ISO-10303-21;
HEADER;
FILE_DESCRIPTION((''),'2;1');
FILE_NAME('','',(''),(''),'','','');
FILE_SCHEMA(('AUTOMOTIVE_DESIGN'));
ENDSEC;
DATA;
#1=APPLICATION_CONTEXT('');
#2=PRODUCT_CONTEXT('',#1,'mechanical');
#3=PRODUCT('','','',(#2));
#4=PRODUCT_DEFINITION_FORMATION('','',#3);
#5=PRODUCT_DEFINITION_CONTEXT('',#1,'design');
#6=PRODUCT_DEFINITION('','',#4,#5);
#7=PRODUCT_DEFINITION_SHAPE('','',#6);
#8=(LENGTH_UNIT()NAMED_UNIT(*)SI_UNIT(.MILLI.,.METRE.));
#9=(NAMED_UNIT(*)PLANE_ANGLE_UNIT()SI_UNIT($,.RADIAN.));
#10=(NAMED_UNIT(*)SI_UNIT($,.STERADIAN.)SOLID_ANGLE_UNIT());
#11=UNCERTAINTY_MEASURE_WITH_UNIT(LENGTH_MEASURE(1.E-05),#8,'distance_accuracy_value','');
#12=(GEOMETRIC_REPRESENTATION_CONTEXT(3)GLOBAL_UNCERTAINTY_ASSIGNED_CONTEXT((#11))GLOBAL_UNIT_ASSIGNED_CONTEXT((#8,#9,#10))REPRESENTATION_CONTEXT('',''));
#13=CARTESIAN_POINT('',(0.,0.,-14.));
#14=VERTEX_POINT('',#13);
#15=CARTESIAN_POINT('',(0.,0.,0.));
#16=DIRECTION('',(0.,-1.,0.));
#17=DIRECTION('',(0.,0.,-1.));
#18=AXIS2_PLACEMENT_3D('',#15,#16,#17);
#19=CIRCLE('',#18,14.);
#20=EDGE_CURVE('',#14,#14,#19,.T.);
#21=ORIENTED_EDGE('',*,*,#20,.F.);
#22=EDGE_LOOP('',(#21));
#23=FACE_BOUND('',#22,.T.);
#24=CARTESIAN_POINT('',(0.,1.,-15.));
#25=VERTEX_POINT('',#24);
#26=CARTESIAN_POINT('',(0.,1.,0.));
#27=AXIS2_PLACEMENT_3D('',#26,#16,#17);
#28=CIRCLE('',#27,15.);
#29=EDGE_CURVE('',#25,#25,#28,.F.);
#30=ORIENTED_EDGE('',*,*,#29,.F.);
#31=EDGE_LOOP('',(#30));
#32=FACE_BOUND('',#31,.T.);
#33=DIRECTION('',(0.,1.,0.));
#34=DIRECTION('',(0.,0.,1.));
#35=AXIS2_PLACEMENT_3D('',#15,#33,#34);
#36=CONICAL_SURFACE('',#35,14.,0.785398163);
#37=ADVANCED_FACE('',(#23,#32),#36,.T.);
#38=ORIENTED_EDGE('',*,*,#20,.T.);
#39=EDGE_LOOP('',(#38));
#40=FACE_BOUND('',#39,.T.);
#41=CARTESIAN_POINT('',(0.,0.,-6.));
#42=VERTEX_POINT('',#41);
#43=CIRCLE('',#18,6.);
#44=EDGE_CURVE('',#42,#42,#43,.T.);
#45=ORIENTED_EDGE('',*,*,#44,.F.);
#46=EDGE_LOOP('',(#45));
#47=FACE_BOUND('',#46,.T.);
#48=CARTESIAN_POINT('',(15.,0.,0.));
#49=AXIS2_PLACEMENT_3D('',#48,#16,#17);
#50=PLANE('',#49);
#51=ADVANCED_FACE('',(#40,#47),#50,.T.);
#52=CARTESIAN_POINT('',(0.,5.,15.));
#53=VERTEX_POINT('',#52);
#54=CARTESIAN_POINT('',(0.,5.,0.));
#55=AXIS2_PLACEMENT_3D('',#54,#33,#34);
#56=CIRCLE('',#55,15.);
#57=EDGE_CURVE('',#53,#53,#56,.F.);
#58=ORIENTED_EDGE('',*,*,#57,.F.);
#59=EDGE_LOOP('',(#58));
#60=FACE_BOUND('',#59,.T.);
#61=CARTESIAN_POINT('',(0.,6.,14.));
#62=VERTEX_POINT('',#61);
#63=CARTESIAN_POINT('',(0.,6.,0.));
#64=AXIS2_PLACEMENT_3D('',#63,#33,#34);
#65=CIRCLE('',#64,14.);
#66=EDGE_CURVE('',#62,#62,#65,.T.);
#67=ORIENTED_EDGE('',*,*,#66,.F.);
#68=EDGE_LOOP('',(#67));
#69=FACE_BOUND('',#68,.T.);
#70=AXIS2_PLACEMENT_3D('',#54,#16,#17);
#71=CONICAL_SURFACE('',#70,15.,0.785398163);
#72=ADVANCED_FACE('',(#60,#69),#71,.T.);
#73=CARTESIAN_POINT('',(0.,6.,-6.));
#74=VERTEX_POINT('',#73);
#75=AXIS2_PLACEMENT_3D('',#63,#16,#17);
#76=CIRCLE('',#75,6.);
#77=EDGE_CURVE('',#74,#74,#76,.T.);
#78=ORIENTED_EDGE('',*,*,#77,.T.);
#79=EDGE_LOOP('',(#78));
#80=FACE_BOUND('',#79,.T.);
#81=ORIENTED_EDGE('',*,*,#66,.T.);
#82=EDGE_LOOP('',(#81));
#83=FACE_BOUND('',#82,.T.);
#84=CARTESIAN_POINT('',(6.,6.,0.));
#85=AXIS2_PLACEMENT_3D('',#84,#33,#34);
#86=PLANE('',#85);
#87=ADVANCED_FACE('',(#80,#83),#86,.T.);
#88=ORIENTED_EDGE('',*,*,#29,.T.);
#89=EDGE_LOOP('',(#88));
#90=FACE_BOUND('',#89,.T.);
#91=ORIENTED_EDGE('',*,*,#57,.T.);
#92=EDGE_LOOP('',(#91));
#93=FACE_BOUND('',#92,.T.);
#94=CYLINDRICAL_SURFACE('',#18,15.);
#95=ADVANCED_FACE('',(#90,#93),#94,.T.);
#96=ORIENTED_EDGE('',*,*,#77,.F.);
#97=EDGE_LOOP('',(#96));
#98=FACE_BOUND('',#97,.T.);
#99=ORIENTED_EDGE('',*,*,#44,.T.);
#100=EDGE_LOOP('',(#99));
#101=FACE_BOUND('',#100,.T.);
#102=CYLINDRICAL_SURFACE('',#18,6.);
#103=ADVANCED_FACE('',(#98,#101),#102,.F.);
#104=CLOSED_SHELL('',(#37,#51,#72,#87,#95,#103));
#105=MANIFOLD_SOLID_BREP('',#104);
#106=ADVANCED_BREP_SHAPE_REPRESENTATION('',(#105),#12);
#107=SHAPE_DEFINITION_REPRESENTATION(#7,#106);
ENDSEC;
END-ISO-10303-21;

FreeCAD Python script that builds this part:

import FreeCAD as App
import Part
import Sketcher
from FreeCAD import Vector


def edges_at(feature, points):
    """Names of the edges that pass closest to the given points."""
    edges = feature.Shape.Edges
    near = lambda p: min(range(len(edges)), key=lambda i: edges[i].distToShape(Part.Vertex(*p))[0])
    return sorted({f"Edge{near(p) + 1}" for p in points})


def add_polygon(sketch, points):
    """Adds a closed chain of lines whose ends are joined by coincident constraints."""
    first, n = sketch.GeometryCount, len(points)
    for a, b in zip(points, points[1:] + points[:1]):
        sketch.addGeometry(Part.LineSegment(App.Vector(*a, 0), App.Vector(*b, 0)), False)
    for i in range(n):
        sketch.addConstraint(Sketcher.Constraint("Coincident", first + i, 2, first + (i + 1) % n, 1))

doc = App.newDocument("Part")
body = doc.addObject("PartDesign::Body", "Body")

sketch1 = body.newObject("Sketcher::SketchObject", "Sketch")
sketch1.AttachmentSupport = (doc.getObject("XY_Plane"), [""])
sketch1.MapMode = "FlatFace"
add_polygon(sketch1, [(6, 6), (6, 0), (15, 0), (15, 6)])
sketch1.addConstraint([
    Sketcher.Constraint("Vertical", 0),
    Sketcher.Constraint("Horizontal", 1),
    Sketcher.Constraint("Vertical", 2),
    Sketcher.Constraint("Horizontal", 3),
    Sketcher.Constraint("PointOnObject", 0, 2, -1),
    Sketcher.Constraint("DistanceX", 1, 1, 1, 2, 9.0),
    Sketcher.Constraint("DistanceY", 0, 2, 0, 1, 6.0),
    Sketcher.Constraint("DistanceX", -1, 1, 0, 2, 6.0),
])
revolution = body.newObject("PartDesign::Revolution", "Revolution")
revolution.Profile = sketch1
revolution.ReferenceAxis = (sketch1, ["V_Axis"])
revolution.Angle = 360
doc.recompute()

chamfer = body.newObject("PartDesign::Chamfer", "Chamfer")
chamfer.Base = (revolution, edges_at(revolution, [(-15, 0, 0), (-15, 6, 0)]))
chamfer.Size = 1

doc.recompute()
